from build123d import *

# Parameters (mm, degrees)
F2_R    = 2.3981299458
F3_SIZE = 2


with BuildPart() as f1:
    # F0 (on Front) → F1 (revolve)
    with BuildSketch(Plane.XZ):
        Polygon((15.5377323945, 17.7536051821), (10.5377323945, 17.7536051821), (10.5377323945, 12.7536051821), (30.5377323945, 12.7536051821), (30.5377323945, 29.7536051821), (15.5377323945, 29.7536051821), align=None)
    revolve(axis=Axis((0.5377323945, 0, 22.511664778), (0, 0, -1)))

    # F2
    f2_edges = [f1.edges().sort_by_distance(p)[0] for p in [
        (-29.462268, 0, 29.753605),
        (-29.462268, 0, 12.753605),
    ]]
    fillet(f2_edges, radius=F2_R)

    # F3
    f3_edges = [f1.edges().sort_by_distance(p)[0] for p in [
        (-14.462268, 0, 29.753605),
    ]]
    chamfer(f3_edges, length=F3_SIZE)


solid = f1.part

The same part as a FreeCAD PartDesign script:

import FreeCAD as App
import Part
import Sketcher
from FreeCAD import Vector
Q = App.Units.Quantity


def edges_at(feature, points):
    """Names of the edges that pass closest to the given points."""
    edges = feature.Shape.Edges
    near = lambda p: min(range(len(edges)), key=lambda i: edges[i].distToShape(Part.Vertex(*p))[0])
    return sorted({f"Edge{near(p) + 1}" for p in points})

doc = App.newDocument("Part")
body = doc.addObject("PartDesign::Body", "Body")

# Sketch on XZ plane
sketch1 = body.newObject("Sketcher::SketchObject", "Sketch")
sketch1.AttachmentSupport = (doc.getObject("XZ_Plane"), [""])
sketch1.MapMode = "FlatFace"
sketch1.addGeometry([
    Part.LineSegment(Vector(16, 18, 0), Vector(11, 18, 0)),  # 0
    Part.LineSegment(Vector(11, 18, 0), Vector(11, 13, 0)),  # 1
    Part.LineSegment(Vector(11, 13, 0), Vector(31, 13, 0)),  # 2
    Part.LineSegment(Vector(31, 13, 0), Vector(31, 30, 0)),  # 3
    Part.LineSegment(Vector(31, 30, 0), Vector(16, 30, 0)),  # 4
    Part.LineSegment(Vector(16, 30, 0), Vector(16, 18, 0)),  # 5
], False)
sketch1.addGeometry(Part.LineSegment(Vector(1, 30, 0), Vector(1, 13, 0)), True)  # axis
sketch1.addConstraint([
    Sketcher.Constraint("Coincident", 0, 2, 1, 1),
    Sketcher.Constraint("Coincident", 1, 2, 2, 1),
    Sketcher.Constraint("Coincident", 2, 2, 3, 1),
    Sketcher.Constraint("Coincident", 3, 2, 4, 1),
    Sketcher.Constraint("Coincident", 4, 2, 5, 1),
    Sketcher.Constraint("Coincident", 5, 2, 0, 1),
    Sketcher.Constraint("Horizontal", 0),
    Sketcher.Constraint("Vertical", 1),
    Sketcher.Constraint("Horizontal", 2),
    Sketcher.Constraint("Vertical", 3),
    Sketcher.Constraint("Horizontal", 4),
    Sketcher.Constraint("Vertical", 5),
    Sketcher.Constraint("Vertical", 6),
    Sketcher.Constraint("Horizontal", 4, 2, 6, 1),
    Sketcher.Constraint("Horizontal", 2, 2, 6, 2),
    Sketcher.Constraint("Equal", 0, 1),
    Sketcher.Constraint("DistanceX", 0, 2, 0, 1, Q("5 mm")),
    Sketcher.Constraint("DistanceX", 2, 1, 2, 2, Q("20 mm")),
    Sketcher.Constraint("DistanceY", 3, 1, 3, 2, Q("17 mm")),
    Sketcher.Constraint("DistanceX", 6, 1, 4, 2, Q("15 mm")),
    Sketcher.Constraint("DistanceX", -1, 1, 0, 2, Q("10.537732 mm")),
    Sketcher.Constraint("DistanceY", -1, 1, 0, 2, Q("17.753605 mm")),
])
revolution = body.newObject("PartDesign::Revolution", "Revolution")
revolution.Profile = sketch1
revolution.ReferenceAxis = (sketch1, ["Axis0"])
revolution.Angle = 360
doc.recompute()

fillet = body.newObject("PartDesign::Fillet", "Fillet")
fillet.Base = (revolution, edges_at(revolution, [(-29.462, 0, 29.754), (-29.462, 0, 12.754)]))
fillet.Radius = 2.39813
doc.recompute()

chamfer = body.newObject("PartDesign::Chamfer", "Chamfer")
chamfer.Base = (fillet, edges_at(fillet, [(-14.462, 0, 29.754)]))
chamfer.Size = 2

doc.recompute()
